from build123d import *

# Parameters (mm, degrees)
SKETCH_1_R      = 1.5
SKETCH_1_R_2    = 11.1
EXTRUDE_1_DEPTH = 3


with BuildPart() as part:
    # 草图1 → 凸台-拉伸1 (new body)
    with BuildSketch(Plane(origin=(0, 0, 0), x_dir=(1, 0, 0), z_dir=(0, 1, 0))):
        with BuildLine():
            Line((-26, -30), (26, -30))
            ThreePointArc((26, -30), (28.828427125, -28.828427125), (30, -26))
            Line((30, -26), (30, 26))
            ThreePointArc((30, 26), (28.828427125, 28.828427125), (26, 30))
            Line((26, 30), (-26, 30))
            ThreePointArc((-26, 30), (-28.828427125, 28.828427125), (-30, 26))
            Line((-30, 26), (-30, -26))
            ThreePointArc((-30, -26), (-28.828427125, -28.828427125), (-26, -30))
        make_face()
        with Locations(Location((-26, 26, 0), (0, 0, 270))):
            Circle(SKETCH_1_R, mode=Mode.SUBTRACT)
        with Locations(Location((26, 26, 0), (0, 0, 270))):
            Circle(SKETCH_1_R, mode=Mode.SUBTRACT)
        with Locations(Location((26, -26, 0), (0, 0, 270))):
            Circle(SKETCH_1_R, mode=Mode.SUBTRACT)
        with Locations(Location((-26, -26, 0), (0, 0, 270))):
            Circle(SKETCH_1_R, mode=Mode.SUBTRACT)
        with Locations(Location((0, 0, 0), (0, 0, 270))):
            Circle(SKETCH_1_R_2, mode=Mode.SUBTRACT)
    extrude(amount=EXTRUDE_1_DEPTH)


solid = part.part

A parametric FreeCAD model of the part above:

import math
import FreeCAD as App
import Part
import Sketcher

V = App.Vector

doc = App.newDocument("Part")
body = doc.addObject("PartDesign::Body", "Body")

# Sketch on XZ plane
sketch1 = body.newObject("Sketcher::SketchObject", "Sketch")
sketch1.AttachmentSupport = (doc.getObject("XZ_Plane"), [""])
sketch1.MapMode = "FlatFace"
sketch1.addGeometry([
    Part.LineSegment(V(-26, 30, 0), V(26, 30, 0)),  # 0
    Part.ArcOfCircle(Part.Circle(V(26, 26, 0), V(0, 0, 1), 4), math.radians(0), math.radians(90)),  # 1
    Part.LineSegment(V(30, 26, 0), V(30, -26, 0)),  # 2
    Part.ArcOfCircle(Part.Circle(V(26, -26, 0), V(0, 0, 1), 4), math.radians(-90), math.radians(0)),  # 3
    Part.LineSegment(V(26, -30, 0), V(-26, -30, 0)),  # 4
    Part.ArcOfCircle(Part.Circle(V(-26, -26, 0), V(0, 0, 1), 4), math.radians(180), math.radians(270)),  # 5
    Part.LineSegment(V(-30, -26, 0), V(-30, 26, 0)),  # 6
    Part.ArcOfCircle(Part.Circle(V(-26, 26, 0), V(0, 0, 1), 4), math.radians(90), math.radians(180)),  # 7
    Part.Circle(V(-26, 26, 0), V(0, 0, 1), 1.5),  # 8
    Part.Circle(V(26, 26, 0), V(0, 0, 1), 1.5),  # 9
    Part.Circle(V(-26, -26, 0), V(0, 0, 1), 1.5),  # 10
    Part.Circle(V(0, 0, 0), V(0, 0, 1), 11.1),  # 11
    Part.Circle(V(26, -26, 0), V(0, 0, 1), 1.5),  # 12
], False)
sketch1.addConstraint([
    Sketcher.Constraint("Tangent", 0, 2, 1, 2),
    Sketcher.Constraint("Tangent", 1, 1, 2, 1),
    Sketcher.Constraint("Tangent", 2, 2, 3, 2),
    Sketcher.Constraint("Tangent", 3, 1, 4, 1),
    Sketcher.Constraint("Tangent", 4, 2, 5, 2),
    Sketcher.Constraint("Tangent", 5, 1, 6, 1),
    Sketcher.Constraint("Tangent", 6, 2, 7, 2),
    Sketcher.Constraint("Tangent", 7, 1, 0, 1),
    Sketcher.Constraint("Horizontal", 0),
    Sketcher.Constraint("Vertical", 2),
    Sketcher.Constraint("Horizontal", 4),
    Sketcher.Constraint("Vertical", 6),
    Sketcher.Constraint("Coincident", 11, 3, -1, 1),
    Sketcher.Constraint("Coincident", 8, 3, 7, 3),
    Sketcher.Constraint("Coincident", 9, 3, 1, 3),
    Sketcher.Constraint("Coincident", 10, 3, 5, 3),
    Sketcher.Constraint("Coincident", 12, 3, 3, 3),
    Sketcher.Constraint("Equal", 1, 3),
    Sketcher.Constraint("Equal", 3, 5),
    Sketcher.Constraint("Equal", 5, 7),
    Sketcher.Constraint("Equal", 8, 9),
    Sketcher.Constraint("Equal", 9, 10),
    Sketcher.Constraint("Equal", 10, 12),
    Sketcher.Constraint("Symmetric", 1, 3, 5, 3, -1, 1),
    Sketcher.Constraint("Equal", 4, 2),
    Sketcher.Constraint("Diameter", 8, 3.0),
    Sketcher.Constraint("Radius", 1, 4.0),
    Sketcher.Constraint("Diameter", 11, 22.2),
    Sketcher.Constraint("DistanceX", 0, 1, 0, 2, 52.0),
])
pad1 = body.newObject("PartDesign::Pad", "Pad")
pad1.Profile = sketch1
pad1.Length = 3
pad1.Reversed = True

doc.recompute()
